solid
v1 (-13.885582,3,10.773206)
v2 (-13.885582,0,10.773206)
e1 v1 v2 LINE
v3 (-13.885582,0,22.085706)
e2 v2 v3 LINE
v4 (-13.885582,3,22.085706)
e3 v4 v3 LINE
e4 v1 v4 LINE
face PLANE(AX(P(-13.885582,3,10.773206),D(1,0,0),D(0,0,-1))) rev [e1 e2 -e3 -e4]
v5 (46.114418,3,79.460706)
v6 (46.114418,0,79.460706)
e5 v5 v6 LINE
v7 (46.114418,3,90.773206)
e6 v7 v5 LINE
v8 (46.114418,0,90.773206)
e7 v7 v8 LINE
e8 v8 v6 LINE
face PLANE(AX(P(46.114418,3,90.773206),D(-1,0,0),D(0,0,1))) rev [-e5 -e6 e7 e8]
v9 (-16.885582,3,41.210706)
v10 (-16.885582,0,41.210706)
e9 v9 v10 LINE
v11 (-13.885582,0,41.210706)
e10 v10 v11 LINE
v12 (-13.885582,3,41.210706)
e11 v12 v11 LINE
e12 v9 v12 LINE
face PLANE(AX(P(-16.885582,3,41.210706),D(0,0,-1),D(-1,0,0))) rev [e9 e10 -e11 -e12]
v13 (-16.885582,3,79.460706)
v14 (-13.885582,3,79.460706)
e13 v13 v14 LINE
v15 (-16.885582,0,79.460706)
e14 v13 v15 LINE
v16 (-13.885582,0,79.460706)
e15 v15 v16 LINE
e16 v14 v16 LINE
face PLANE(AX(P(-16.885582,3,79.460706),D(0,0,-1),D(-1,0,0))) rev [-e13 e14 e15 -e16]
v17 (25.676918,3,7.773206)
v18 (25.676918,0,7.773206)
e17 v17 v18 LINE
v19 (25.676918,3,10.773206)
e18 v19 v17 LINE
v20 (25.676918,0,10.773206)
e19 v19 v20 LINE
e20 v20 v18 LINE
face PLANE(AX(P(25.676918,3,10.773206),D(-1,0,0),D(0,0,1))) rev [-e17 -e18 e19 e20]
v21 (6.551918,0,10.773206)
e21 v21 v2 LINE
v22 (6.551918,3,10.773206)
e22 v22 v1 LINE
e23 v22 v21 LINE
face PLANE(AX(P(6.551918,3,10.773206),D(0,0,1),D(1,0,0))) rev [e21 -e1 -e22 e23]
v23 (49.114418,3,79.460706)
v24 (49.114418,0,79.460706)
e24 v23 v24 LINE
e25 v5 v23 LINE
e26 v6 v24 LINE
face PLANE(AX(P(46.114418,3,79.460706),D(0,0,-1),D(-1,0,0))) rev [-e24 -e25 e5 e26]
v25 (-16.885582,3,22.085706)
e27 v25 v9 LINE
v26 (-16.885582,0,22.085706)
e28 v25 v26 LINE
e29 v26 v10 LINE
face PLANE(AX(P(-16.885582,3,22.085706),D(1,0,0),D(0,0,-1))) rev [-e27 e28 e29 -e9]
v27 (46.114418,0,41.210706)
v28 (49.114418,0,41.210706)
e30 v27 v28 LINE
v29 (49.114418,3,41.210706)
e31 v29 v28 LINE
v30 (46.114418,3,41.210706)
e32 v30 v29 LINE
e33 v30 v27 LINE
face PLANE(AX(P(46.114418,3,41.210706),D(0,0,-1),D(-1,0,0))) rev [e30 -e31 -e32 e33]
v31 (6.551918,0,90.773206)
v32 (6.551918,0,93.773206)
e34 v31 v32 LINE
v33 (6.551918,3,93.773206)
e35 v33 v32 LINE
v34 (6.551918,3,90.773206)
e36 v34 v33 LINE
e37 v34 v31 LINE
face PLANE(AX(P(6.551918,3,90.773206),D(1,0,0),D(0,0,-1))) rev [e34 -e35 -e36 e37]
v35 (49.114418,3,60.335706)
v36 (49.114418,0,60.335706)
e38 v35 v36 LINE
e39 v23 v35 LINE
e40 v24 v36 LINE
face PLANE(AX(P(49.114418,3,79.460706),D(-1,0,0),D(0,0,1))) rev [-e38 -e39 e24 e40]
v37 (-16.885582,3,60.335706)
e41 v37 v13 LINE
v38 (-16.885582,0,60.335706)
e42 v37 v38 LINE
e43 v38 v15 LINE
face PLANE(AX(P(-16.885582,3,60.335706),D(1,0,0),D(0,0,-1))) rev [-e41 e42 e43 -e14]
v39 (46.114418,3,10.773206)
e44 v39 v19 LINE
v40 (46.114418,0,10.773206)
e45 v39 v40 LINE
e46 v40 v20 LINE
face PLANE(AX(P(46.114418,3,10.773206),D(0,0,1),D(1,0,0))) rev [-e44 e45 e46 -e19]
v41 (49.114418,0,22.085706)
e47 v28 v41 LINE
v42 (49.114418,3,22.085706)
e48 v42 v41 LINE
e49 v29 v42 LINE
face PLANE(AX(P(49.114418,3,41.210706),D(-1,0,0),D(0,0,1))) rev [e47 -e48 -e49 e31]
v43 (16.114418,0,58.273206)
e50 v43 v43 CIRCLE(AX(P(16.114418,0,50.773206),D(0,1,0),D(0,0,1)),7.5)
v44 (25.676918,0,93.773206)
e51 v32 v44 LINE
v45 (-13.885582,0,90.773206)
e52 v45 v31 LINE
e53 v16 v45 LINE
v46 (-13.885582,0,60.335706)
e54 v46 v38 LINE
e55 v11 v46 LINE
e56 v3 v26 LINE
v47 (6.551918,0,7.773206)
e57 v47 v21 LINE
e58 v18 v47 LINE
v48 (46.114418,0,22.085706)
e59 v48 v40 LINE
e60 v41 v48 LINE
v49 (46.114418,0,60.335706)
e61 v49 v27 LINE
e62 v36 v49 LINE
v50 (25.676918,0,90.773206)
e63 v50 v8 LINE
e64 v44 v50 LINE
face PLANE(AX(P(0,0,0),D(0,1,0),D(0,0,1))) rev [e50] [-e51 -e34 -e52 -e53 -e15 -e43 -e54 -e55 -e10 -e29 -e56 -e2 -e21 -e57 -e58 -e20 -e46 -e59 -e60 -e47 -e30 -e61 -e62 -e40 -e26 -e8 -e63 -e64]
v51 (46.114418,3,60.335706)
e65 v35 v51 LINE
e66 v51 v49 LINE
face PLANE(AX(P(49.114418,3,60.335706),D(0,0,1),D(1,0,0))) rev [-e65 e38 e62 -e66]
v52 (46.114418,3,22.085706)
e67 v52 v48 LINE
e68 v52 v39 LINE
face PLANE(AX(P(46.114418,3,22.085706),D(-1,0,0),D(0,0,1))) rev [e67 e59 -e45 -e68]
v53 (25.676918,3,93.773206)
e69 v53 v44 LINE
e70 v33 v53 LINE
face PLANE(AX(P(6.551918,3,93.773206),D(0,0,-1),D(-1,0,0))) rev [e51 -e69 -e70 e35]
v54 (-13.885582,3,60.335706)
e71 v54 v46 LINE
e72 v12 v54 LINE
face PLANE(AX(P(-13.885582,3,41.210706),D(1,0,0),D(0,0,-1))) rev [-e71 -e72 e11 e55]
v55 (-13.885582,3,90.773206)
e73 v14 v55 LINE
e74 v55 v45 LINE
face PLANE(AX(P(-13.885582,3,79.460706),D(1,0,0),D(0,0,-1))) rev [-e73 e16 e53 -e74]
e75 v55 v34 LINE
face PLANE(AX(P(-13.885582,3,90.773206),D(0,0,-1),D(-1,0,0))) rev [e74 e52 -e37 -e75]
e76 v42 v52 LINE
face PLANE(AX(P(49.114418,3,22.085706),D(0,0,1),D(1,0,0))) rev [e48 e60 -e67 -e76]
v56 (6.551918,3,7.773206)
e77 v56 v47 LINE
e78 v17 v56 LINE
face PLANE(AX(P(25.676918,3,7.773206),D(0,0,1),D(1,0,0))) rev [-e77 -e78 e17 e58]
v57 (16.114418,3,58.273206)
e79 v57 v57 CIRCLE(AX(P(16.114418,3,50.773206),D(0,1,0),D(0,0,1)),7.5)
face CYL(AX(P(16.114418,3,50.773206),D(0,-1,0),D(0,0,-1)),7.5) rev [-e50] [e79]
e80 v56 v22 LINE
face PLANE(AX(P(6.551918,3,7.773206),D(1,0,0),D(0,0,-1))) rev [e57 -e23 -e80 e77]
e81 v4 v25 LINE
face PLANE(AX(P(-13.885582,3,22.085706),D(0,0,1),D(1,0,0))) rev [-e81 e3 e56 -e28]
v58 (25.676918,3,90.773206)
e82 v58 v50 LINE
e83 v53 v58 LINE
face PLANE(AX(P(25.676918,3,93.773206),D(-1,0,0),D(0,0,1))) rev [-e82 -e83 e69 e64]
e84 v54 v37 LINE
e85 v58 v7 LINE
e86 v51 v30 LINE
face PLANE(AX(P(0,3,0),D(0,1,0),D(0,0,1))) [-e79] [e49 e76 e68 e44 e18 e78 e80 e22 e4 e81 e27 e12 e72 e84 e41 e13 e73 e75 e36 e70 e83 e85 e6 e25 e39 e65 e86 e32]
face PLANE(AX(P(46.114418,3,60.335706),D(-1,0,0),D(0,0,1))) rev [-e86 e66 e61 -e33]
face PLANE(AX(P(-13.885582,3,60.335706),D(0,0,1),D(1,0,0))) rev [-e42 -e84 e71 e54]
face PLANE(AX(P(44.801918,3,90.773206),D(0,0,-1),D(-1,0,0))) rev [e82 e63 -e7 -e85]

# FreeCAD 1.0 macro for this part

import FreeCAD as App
import Part
import Sketcher
from FreeCAD import Vector


def add_polygon(sketch, points):
    """Adds a closed chain of lines whose ends are joined by coincident constraints."""
    first, n = sketch.GeometryCount, len(points)
    for a, b in zip(points, points[1:] + points[:1]):
        sketch.addGeometry(Part.LineSegment(App.Vector(*a, 0), App.Vector(*b, 0)), False)
    for i in range(n):
        sketch.addConstraint(Sketcher.Constraint("Coincident", first + i, 2, first + (i + 1) % n, 1))

doc = App.newDocument("Part")
body = doc.addObject("PartDesign::Body", "Body")

# Sketch on XZ plane
sketch1 = doc.addObject("Sketcher::SketchObject", "Sketch")
body.addObject(sketch1)
sketch1.AttachmentSupport = (doc.XZ_Plane, [""])
sketch1.MapMode = "FlatFace"
add_polygon(sketch1, [(-13.885582, 10.773206), (-13.885582, 22.085706), (-16.885582, 22.085706), (-16.885582, 41.210706), (-13.885582, 41.210706), (-13.885582, 60.335706), (-16.885582, 60.335706), (-16.885582, 79.460706), (-13.885582, 79.460706), (-13.885582, 90.773206), (6.551918, 90.773206), (6.551918, 93.773206), (25.676918, 93.773206), (25.676918, 90.773206), (46.114418, 90.773206), (46.114418, 79.460706), (49.114418, 79.460706), (49.114418, 60.335706), (46.114418, 60.335706), (46.114418, 41.210706), (49.114418, 41.210706), (49.114418, 22.085706), (46.114418, 22.085706), (46.114418, 10.773206), (25.676918, 10.773206), (25.676918, 7.773206), (6.551918, 7.773206), (6.551918, 10.773206)])  # lines 0-27
sketch1.addGeometry(Part.Circle(Vector(16.114418, 50.773206, 0), Vector(0, 0, 1), 7.5), False)  # 28
sketch1.addConstraint([
    Sketcher.Constraint("Vertical", 0),
    Sketcher.Constraint("Horizontal", 1),
    Sketcher.Constraint("Vertical", 2),
    Sketcher.Constraint("Horizontal", 3),
    Sketcher.Constraint("Vertical", 4),
    Sketcher.Constraint("Horizontal", 5),
    Sketcher.Constraint("Vertical", 6),
    Sketcher.Constraint("Horizontal", 7),
    Sketcher.Constraint("Vertical", 8),
    Sketcher.Constraint("Horizontal", 9),
    Sketcher.Constraint("Vertical", 10),
    Sketcher.Constraint("Horizontal", 11),
    Sketcher.Constraint("Vertical", 12),
    Sketcher.Constraint("Horizontal", 13),
    Sketcher.Constraint("Vertical", 14),
    Sketcher.Constraint("Horizontal", 15),
    Sketcher.Constraint("Vertical", 16),
    Sketcher.Constraint("Horizontal", 17),
    Sketcher.Constraint("Vertical", 18),
    Sketcher.Constraint("Horizontal", 19),
    Sketcher.Constraint("Vertical", 20),
    Sketcher.Constraint("Horizontal", 21),
    Sketcher.Constraint("Vertical", 22),
    Sketcher.Constraint("Horizontal", 23),
    Sketcher.Constraint("Vertical", 24),
    Sketcher.Constraint("Horizontal", 25),
    Sketcher.Constraint("Vertical", 26),
    Sketcher.Constraint("Horizontal", 27),
    Sketcher.Constraint("Horizontal", 9, 2, 12, 2),
    Sketcher.Constraint("Horizontal", 7, 2, 14, 2),
    Sketcher.Constraint("Horizontal", 5, 2, 16, 2),
    Sketcher.Constraint("Horizontal", 3, 2, 18, 2),
    Sketcher.Constraint("Horizontal", 1, 2, 20, 2),
    Sketcher.Constraint("Horizontal", 23, 2, 26, 2),
    Sketcher.Constraint("Vertical", 0, 2, 3, 2),
    Sketcher.Constraint("Vertical", 2, 2, 5, 2),
    Sketcher.Constraint("Vertical", 4, 2, 7, 2),
    Sketcher.Constraint("Vertical", 14, 2, 17, 2),
    Sketcher.Constraint("Vertical", 16, 2, 19, 2),
    Sketcher.Constraint("Vertical", 18, 2, 21, 2),
    Sketcher.Constraint("Vertical", 12, 2, 23, 2),
    Sketcher.Constraint("Vertical", 10, 2, 25, 2),
    Sketcher.Constraint("Equal", 9, 13),
    Sketcher.Constraint("Equal", 7, 15),
    Sketcher.Constraint("Equal", 25, 2),
    Sketcher.Constraint("Equal", 2, 4),
    Sketcher.Constraint("Equal", 4, 6),
    Sketcher.Constraint("Equal", 0, 8),
    Sketcher.Constraint("Equal", 21, 10),
    Sketcher.Constraint("Equal", 12, 24),
    Sketcher.Constraint("Diameter", 28, 15.0),
    Sketcher.Constraint("DistanceX", 1, 2, 1, 1, 3.0),
    Sketcher.Constraint("DistanceX", 0, 2, 28, 3, 30.0),
    Sketcher.Constraint("DistanceY", 28, 3, 11, 2, 43.0),
    Sketcher.Constraint("DistanceX", 28, 3, 13, 2, 30.0),
    Sketcher.Constraint("DistanceX", 11, 1, 11, 2, 19.125),
    Sketcher.Constraint("DistanceY", 0, 1, 0, 2, 11.3125),
    Sketcher.Constraint("DistanceX", -1, 1, 28, 3, 16.114418),
    Sketcher.Constraint("DistanceY", -1, 1, 28, 3, 50.773206),
])
pad1 = doc.addObject("PartDesign::Pad", "Pad")
body.addObject(pad1)
pad1.Profile = sketch1
pad1.Length = 3
pad1.Reversed = True

doc.recompute()
